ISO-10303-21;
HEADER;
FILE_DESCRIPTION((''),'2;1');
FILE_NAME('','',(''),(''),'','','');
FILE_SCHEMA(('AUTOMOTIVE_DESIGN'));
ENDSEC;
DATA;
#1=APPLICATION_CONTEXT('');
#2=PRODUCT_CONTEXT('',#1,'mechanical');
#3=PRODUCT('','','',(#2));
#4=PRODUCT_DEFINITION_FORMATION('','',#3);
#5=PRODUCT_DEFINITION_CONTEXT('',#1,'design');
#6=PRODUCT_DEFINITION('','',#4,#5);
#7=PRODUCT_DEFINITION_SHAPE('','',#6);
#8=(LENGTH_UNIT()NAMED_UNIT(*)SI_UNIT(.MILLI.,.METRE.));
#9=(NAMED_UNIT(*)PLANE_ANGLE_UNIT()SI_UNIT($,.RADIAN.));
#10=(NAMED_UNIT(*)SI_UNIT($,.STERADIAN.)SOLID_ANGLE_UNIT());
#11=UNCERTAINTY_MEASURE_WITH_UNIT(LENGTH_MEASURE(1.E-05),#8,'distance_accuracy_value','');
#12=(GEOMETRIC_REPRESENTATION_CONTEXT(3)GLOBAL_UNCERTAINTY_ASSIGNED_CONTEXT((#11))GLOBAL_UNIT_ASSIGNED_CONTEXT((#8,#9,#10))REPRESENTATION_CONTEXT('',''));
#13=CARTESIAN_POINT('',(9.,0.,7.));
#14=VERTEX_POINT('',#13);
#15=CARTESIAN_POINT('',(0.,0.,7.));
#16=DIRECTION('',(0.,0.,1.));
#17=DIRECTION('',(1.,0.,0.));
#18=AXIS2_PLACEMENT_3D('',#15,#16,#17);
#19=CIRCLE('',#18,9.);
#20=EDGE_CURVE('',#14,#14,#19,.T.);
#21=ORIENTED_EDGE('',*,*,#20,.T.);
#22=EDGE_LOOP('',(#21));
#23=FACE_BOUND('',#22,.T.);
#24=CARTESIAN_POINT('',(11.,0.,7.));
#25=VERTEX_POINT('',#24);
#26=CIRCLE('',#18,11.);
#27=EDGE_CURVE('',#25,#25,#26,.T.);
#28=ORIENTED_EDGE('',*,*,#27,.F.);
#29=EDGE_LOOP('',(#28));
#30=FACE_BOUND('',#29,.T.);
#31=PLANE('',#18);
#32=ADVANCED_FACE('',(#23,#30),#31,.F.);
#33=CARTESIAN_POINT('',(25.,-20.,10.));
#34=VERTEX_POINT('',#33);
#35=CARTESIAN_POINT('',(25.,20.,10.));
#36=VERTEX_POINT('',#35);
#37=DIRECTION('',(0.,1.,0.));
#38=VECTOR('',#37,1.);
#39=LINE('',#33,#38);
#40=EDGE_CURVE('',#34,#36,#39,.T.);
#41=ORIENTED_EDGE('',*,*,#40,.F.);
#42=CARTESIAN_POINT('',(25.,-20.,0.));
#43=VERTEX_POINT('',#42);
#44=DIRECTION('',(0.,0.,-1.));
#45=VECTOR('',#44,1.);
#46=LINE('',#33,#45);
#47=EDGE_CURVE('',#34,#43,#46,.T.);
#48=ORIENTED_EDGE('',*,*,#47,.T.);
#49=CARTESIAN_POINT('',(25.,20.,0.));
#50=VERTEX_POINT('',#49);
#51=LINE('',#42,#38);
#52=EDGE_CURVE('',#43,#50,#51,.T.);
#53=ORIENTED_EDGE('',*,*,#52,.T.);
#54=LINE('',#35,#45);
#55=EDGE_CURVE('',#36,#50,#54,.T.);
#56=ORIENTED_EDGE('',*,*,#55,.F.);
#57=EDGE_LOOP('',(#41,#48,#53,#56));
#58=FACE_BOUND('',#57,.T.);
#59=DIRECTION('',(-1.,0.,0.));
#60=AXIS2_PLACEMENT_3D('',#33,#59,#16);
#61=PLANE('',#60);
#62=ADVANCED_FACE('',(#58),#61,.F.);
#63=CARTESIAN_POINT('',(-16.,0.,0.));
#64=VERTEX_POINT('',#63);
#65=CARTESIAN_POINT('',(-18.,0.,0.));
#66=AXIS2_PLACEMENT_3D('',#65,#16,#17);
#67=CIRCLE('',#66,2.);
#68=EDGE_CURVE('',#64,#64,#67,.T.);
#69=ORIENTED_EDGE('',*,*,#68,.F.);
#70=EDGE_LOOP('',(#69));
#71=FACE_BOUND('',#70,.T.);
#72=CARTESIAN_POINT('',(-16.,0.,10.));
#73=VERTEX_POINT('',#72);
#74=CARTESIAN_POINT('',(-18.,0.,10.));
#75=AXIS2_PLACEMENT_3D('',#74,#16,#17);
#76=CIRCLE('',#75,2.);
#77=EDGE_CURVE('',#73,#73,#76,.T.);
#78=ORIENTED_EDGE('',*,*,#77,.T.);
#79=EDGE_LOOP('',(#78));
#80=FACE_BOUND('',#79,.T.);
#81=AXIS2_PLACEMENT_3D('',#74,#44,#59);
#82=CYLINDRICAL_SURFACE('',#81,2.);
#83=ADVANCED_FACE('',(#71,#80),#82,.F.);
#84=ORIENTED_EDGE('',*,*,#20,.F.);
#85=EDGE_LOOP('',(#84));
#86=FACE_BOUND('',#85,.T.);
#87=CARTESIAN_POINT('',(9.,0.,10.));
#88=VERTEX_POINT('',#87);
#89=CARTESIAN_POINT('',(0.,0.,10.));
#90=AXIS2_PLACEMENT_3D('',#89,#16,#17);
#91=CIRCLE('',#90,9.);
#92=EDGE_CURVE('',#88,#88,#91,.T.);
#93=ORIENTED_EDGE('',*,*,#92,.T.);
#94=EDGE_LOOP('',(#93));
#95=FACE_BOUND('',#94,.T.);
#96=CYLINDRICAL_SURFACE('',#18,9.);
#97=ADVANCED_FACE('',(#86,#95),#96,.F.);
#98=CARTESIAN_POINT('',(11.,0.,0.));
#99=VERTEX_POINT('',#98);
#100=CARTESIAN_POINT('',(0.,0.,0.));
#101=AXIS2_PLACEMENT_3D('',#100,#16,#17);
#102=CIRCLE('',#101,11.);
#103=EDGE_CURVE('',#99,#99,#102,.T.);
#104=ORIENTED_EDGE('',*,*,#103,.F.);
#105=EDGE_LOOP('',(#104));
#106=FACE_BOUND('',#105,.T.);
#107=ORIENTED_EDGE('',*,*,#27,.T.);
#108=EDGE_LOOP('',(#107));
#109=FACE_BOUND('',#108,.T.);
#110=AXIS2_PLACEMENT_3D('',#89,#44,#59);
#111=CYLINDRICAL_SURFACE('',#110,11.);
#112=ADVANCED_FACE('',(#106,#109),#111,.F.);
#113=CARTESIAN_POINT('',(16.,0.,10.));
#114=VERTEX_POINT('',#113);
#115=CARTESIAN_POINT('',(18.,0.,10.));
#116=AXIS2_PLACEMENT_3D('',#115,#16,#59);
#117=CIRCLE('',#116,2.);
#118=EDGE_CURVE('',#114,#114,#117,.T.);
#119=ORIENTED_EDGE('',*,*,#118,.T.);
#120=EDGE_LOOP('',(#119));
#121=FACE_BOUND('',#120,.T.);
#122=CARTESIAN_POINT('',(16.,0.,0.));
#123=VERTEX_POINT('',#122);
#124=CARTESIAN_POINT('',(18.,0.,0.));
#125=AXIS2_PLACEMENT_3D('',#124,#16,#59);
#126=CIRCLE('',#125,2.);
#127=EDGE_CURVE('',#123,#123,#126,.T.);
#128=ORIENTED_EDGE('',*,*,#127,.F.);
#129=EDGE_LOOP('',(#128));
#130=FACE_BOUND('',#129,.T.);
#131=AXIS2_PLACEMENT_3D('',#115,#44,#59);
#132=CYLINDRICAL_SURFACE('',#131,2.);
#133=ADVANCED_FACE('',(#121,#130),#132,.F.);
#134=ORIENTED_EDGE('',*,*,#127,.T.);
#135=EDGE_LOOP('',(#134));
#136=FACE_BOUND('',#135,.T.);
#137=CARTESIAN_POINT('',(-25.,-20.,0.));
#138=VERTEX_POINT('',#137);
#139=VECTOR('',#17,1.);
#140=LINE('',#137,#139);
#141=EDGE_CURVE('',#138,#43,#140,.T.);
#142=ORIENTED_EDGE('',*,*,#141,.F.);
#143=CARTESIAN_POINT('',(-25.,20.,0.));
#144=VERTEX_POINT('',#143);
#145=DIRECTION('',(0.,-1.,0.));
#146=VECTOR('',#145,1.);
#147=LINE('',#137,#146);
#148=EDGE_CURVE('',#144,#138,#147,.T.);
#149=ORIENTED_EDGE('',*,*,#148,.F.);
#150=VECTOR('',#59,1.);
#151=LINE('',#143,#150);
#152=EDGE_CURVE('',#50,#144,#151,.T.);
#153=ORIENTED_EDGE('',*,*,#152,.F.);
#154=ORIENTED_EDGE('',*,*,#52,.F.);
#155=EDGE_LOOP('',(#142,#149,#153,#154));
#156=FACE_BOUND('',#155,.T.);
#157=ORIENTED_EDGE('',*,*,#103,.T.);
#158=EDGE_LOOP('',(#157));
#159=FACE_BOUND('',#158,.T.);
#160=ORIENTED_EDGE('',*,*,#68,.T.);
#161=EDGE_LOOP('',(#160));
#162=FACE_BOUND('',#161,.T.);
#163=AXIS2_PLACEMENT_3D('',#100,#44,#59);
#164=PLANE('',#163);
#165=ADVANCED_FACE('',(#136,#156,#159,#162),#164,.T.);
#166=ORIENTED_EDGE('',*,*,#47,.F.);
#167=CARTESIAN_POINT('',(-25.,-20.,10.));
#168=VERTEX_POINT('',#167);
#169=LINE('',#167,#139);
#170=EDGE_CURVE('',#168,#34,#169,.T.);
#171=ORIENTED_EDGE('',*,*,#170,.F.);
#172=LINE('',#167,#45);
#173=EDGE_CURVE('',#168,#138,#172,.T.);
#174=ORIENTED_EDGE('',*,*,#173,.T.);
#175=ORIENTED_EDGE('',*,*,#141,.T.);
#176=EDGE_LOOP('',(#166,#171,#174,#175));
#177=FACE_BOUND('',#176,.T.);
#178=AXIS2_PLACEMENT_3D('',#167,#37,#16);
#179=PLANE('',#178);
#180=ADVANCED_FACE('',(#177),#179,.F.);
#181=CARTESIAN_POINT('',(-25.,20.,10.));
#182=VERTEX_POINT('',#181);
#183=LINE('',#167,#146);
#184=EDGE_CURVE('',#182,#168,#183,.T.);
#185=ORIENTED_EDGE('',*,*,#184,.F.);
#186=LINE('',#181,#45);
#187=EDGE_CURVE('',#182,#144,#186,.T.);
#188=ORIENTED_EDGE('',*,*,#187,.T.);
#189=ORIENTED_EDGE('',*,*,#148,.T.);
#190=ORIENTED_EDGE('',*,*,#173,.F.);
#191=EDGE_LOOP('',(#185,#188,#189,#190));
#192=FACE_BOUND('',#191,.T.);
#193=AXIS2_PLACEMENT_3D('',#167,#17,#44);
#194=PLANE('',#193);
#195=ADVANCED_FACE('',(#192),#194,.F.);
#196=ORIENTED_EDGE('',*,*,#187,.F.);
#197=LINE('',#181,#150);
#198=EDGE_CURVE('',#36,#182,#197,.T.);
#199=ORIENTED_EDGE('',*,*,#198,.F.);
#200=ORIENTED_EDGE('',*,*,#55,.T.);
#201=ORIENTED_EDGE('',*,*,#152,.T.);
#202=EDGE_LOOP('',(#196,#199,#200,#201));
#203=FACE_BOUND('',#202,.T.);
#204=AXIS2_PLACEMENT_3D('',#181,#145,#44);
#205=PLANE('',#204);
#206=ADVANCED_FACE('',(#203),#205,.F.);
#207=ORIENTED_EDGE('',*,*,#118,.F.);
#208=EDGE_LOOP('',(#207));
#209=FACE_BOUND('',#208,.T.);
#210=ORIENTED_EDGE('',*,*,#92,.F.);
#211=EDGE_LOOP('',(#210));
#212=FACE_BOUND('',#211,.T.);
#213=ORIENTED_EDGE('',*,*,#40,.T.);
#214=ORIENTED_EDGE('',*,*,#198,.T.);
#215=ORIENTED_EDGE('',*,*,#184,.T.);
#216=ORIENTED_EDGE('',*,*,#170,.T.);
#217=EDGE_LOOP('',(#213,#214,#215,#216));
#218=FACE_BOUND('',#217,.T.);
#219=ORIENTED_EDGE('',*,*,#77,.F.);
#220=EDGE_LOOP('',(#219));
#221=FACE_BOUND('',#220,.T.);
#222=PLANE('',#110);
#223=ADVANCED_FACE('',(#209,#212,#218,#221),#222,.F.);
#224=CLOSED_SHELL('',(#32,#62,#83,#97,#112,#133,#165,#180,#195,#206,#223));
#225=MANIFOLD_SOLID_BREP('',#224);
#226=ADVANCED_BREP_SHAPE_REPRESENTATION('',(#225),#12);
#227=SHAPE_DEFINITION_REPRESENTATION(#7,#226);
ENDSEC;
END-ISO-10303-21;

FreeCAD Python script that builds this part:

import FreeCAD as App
import Part
import Sketcher

V = App.Vector


def add_polygon(sketch, points):
    """Adds a closed chain of lines whose ends are joined by coincident constraints."""
    first, n = sketch.GeometryCount, len(points)
    for a, b in zip(points, points[1:] + points[:1]):
        sketch.addGeometry(Part.LineSegment(App.Vector(*a, 0), App.Vector(*b, 0)), False)
    for i in range(n):
        sketch.addConstraint(Sketcher.Constraint("Coincident", first + i, 2, first + (i + 1) % n, 1))

doc = App.newDocument("Part")
body = doc.addObject("PartDesign::Body", "Body")

# Sketch on XY plane
sketch1 = doc.addObject("Sketcher::SketchObject", "Sketch")
body.addObject(sketch1)
sketch1.AttachmentSupport = (doc.XY_Plane, [""])
sketch1.MapMode = "FlatFace"
add_polygon(sketch1, [(-25, 20), (-25, -20), (25, -20), (25, 20)])  # lines 0-3
sketch1.addGeometry(Part.Circle(V(-18, 0, 0), V(0, 0, 1), 2), False)  # 4
sketch1.addGeometry(Part.Circle(V(0, 0, 0), V(0, 0, 1), 11), False)  # 5
sketch1.addGeometry(Part.Circle(V(18, 0, 0), V(0, 0, 1), 2), False)  # 6
sketch1.addConstraint([
    Sketcher.Constraint("Vertical", 0),
    Sketcher.Constraint("Horizontal", 1),
    Sketcher.Constraint("Vertical", 2),
    Sketcher.Constraint("Horizontal", 3),
    Sketcher.Constraint("Coincident", 5, 3, -1, 1),
    Sketcher.Constraint("Equal", 4, 6),
    Sketcher.Constraint("Symmetric", 4, 3, 6, 3, -1, 1),
    Sketcher.Constraint("Symmetric", 0, 2, 2, 2, -1, 1),
    Sketcher.Constraint("PointOnObject", 4, 3, -1),
    Sketcher.Constraint("Diameter", 4, 4.0),
    Sketcher.Constraint("Diameter", 5, 22.0),
    Sketcher.Constraint("DistanceX", 1, 1, 1, 2, 50.0),
    Sketcher.Constraint("DistanceY", 0, 2, 0, 1, 40.0),
    Sketcher.Constraint("DistanceX", 4, 3, -1, 1, 18.0),
])
pad1 = doc.addObject("PartDesign::Pad", "Pad")
body.addObject(pad1)
pad1.Profile = sketch1
pad1.Length = 10

# Sketch on XY plane
sketch2 = doc.addObject("Sketcher::SketchObject", "Sketch001")
body.addObject(sketch2)
sketch2.AttachmentSupport = (doc.XY_Plane, [""])
sketch2.MapMode = "FlatFace"
sketch2.AttachmentOffset = App.Placement(V(0, 0, 10), App.Rotation())
sketch2.addGeometry([
    Part.Circle(V(0, 0, 0), V(0, 0, 1), 11),
    Part.Circle(V(0, 0, 0), V(0, 0, 1), 9),
], False)
sketch2.addConstraint([
    Sketcher.Constraint("Coincident", 0, 3, -1, 1),
    Sketcher.Constraint("Coincident", 1, 3, -1, 1),
    Sketcher.Constraint("Diameter", 0, 22.0),
    Sketcher.Constraint("Diameter", 1, 18.0),
])
pad2 = doc.addObject("PartDesign::Pad", "Pad001")
body.addObject(pad2)
pad2.Profile = sketch2
pad2.Length = 3
pad2.Reversed = True

doc.recompute()
